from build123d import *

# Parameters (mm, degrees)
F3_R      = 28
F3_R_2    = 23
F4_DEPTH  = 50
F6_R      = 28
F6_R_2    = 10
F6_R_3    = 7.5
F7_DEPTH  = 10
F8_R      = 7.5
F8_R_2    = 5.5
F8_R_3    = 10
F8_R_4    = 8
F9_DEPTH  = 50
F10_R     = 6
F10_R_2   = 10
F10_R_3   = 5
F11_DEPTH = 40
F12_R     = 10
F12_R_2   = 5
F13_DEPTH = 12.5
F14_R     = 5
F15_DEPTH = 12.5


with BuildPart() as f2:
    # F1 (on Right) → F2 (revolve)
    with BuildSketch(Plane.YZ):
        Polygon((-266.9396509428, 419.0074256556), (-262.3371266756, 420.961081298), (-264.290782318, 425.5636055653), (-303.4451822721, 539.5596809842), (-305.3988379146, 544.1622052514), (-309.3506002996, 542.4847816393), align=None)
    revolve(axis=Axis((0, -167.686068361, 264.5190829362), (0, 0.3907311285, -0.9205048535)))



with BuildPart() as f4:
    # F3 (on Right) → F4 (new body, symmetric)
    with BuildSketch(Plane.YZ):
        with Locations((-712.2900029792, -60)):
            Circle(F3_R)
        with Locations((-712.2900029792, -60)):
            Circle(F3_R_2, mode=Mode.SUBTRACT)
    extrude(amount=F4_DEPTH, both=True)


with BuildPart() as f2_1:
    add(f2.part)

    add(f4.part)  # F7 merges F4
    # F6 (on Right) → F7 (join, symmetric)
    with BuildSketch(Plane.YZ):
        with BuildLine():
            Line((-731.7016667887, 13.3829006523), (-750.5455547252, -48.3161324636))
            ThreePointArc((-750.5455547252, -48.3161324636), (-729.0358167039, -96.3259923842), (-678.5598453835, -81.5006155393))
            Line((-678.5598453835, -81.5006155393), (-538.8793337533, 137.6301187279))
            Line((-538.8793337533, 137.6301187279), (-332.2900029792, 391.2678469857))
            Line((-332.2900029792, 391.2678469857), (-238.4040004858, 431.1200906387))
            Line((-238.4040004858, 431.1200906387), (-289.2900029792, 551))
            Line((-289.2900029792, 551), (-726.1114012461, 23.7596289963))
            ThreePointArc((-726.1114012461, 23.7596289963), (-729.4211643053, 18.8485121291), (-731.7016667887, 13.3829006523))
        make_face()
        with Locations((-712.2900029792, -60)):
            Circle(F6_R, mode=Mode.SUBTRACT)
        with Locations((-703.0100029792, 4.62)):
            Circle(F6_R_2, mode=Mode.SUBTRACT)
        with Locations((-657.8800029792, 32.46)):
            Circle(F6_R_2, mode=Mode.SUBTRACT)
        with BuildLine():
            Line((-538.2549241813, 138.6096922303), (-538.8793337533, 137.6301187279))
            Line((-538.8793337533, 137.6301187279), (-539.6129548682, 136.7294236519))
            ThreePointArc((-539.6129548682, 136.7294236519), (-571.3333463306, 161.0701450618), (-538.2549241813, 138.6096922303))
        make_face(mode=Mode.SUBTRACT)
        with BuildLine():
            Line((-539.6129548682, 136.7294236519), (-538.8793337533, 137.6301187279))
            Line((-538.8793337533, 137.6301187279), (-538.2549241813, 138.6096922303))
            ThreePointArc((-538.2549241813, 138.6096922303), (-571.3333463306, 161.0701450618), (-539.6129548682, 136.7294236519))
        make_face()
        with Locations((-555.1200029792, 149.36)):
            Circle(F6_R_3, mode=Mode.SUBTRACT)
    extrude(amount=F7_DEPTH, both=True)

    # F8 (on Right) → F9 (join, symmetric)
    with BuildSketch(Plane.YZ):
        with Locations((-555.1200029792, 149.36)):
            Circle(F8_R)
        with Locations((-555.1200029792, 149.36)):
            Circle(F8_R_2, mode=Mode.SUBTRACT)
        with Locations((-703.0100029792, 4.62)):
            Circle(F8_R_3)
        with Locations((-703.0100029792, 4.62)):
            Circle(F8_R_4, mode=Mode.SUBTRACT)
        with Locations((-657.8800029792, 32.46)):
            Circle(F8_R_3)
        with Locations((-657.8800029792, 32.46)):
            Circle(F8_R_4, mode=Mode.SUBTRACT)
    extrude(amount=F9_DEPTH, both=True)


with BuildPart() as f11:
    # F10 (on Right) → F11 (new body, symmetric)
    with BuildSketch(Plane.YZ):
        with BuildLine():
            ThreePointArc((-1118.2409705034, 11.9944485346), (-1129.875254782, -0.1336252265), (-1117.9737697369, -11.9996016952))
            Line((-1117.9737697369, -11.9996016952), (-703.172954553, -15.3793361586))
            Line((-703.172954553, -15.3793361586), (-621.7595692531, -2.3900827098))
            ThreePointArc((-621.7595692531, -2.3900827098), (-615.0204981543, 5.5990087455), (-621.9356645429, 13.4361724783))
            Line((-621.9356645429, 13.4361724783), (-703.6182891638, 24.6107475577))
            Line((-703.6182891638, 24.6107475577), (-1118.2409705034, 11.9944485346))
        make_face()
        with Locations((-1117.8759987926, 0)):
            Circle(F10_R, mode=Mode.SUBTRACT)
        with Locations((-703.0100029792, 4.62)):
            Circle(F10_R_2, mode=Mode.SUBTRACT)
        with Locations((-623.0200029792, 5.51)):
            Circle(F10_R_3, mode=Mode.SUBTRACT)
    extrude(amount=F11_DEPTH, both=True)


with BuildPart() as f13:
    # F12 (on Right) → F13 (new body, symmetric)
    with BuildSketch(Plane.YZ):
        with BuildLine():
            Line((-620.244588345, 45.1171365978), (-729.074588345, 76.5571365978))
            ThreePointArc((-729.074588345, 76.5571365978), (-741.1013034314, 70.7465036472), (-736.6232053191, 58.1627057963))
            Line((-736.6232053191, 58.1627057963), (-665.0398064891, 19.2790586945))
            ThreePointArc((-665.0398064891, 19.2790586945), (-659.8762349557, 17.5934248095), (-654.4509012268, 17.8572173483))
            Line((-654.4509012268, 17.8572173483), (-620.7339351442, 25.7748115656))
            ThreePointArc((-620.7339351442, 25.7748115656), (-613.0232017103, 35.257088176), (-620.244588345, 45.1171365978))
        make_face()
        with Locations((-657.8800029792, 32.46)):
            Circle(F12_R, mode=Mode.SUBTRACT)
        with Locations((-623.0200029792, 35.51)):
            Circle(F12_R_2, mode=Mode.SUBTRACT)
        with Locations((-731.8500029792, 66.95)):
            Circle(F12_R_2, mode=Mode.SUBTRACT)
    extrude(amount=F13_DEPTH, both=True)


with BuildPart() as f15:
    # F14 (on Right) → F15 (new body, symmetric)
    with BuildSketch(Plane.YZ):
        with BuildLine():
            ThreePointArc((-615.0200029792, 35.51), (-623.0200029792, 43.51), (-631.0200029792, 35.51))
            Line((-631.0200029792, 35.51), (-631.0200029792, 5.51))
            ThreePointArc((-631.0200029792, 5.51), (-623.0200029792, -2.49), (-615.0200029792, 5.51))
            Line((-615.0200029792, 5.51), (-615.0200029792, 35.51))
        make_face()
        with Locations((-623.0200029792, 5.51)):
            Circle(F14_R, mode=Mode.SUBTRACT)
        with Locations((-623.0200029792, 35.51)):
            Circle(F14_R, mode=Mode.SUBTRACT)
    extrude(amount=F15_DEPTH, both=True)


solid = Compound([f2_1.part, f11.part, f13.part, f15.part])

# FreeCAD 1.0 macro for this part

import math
import FreeCAD as App
import Part
import Sketcher
from FreeCAD import Vector
Q = App.Units.Quantity


def add_polygon(sketch, points):
    """Adds a closed chain of lines whose ends are joined by coincident constraints."""
    first, n = sketch.GeometryCount, len(points)
    for a, b in zip(points, points[1:] + points[:1]):
        sketch.addGeometry(Part.LineSegment(App.Vector(*a, 0), App.Vector(*b, 0)), False)
    for i in range(n):
        sketch.addConstraint(Sketcher.Constraint("Coincident", first + i, 2, first + (i + 1) % n, 1))

doc = App.newDocument("Part")
body = doc.addObject("PartDesign::Body", "Body")

sketch1 = body.newObject("Sketcher::SketchObject", "Sketch")
sketch1.AttachmentSupport = (doc.getObject("YZ_Plane"), [""])
sketch1.MapMode = "FlatFace"
add_polygon(sketch1, [(-266.9, 419), (-262.3, 421), (-264.3, 425.6), (-303.4, 539.6), (-305.4, 544.2), (-309.4, 542.5)])
sketch1.addGeometry(Part.LineSegment(Vector(-289.3, 551, 0), Vector(-238.4, 431.1, 0)), True)
sketch1.addConstraint(Sketcher.Constraint("Perpendicular", 0, 1))
sketch1.addConstraint(Sketcher.Constraint("Parallel", 1, 3))
sketch1.addConstraint(Sketcher.Constraint("Perpendicular", 3, 4))
sketch1.addConstraint(Sketcher.Constraint("Parallel", 2, 5))
sketch1.addConstraint(Sketcher.Constraint("Perpendicular", 4, 6))
sketch1.addConstraint(Sketcher.Constraint("Equal", 0, 1))
sketch1.addConstraint(Sketcher.Constraint("Equal", 1, 3))
sketch1.addConstraint(Sketcher.Constraint("Angle", 0, Q("23 deg")))
sketch1.addConstraint(Sketcher.Constraint("Distance", 0, Q("5 mm")))
sketch1.addConstraint(Sketcher.Constraint("DistanceY", -1, 1, 6, 1, Q("551 mm")))
sketch1.addConstraint(Sketcher.Constraint("DistanceX", 6, 2, -1, 1, Q("238.404 mm")))
sketch1.addConstraint(Sketcher.Constraint("DistanceX", 4, 2, -1, 1, Q("309.3506 mm")))
sketch1.addConstraint(Sketcher.Constraint("DistanceX", 2, 2, 1, 2, Q("39.1544 mm")))
sketch1.addConstraint(Sketcher.Constraint("DistanceY", 0, 2, 2, 2, Q("118.5986 mm")))
sketch1.addConstraint(Sketcher.Constraint("DistanceY", -1, 1, 0, 2, Q("420.961081 mm")))
sketch1.addConstraint(Sketcher.Constraint("DistanceY", -1, 1, 6, 2, Q("431.12009 mm")))
revolution = body.newObject("PartDesign::Revolution", "Revolution")
revolution.Profile = sketch1
revolution.ReferenceAxis = (sketch1, ["Axis0"])
revolution.Angle = 360
body2 = doc.addObject("PartDesign::Body", "Body001")

sketch2 = body2.newObject("Sketcher::SketchObject", "Sketch001")
sketch2.AttachmentSupport = (doc.getObject("YZ_Plane001"), [""])
sketch2.MapMode = "FlatFace"
sketch2.addGeometry(Part.Circle(Vector(-712, -60, 0), Vector(0, 0, 1), 28), False)
sketch2.addGeometry(Part.Circle(Vector(-712, -60, 0), Vector(0, 0, 1), 23), False)
sketch2.addConstraint(Sketcher.Constraint("Coincident", 1, 3, 0, 3))
sketch2.addConstraint(Sketcher.Constraint("Diameter", 0, Q("56 mm")))
sketch2.addConstraint(Sketcher.Constraint("Diameter", 1, Q("46 mm")))
sketch2.addConstraint(Sketcher.Constraint("DistanceY", 0, 3, -1, 1, Q("60 mm")))
sketch2.addConstraint(Sketcher.Constraint("DistanceX", 0, 3, -1, 1, Q("712.290003 mm")))
pad1 = body2.newObject("PartDesign::Pad", "Pad")
pad1.Profile = sketch2
pad1.Length = 100
pad1.Midplane = True
body.AllowCompound = True
doc.recompute()

boolean = body.newObject("PartDesign::Boolean", "Boolean")
boolean.Type = "Fuse"
boolean.addObjects([body2])

sketch3 = body.newObject("Sketcher::SketchObject", "Sketch002")
sketch3.AttachmentSupport = (doc.getObject("YZ_Plane"), [""])
sketch3.MapMode = "FlatFace"
sketch3.addGeometry(Part.LineSegment(Vector(-289, 551, 0), Vector(-726, 24, 0)), False)
sketch3.addGeometry(Part.ArcOfCircle(Part.Circle(Vector(-703, 5, 0), Vector(0, 0, 1), 30), math.radians(140), math.radians(163)), False)
sketch3.addGeometry(Part.LineSegment(Vector(-732, 13, 0), Vector(-751, -48, 0)), False)
sketch3.addGeometry(Part.ArcOfCircle(Part.Circle(Vector(-712, -60, 0), Vector(0, 0, 1), 40), math.radians(163), math.radians(327)), False)
sketch3.addGeometry(Part.LineSegment(Vector(-679, -82, 0), Vector(-539, 138, 0)), False)
sketch3.addGeometry(Part.LineSegment(Vector(-539, 138, 0), Vector(-332, 391, 0)), False)
sketch3.addGeometry(Part.LineSegment(Vector(-332, 391, 0), Vector(-238, 431, 0)), False)
sketch3.addGeometry(Part.LineSegment(Vector(-238, 431, 0), Vector(-289, 551, 0)), False)
sketch3.addGeometry(Part.Circle(Vector(-712, -60, 0), Vector(0, 0, 1), 28), False)
sketch3.addGeometry(Part.Circle(Vector(-703, 5, 0), Vector(0, 0, 1), 10), False)
sketch3.addGeometry(Part.Circle(Vector(-658, 32, 0), Vector(0, 0, 1), 10), False)
sketch3.addGeometry(Part.Circle(Vector(-555, 149, 0), Vector(0, 0, 1), 8), False)
sketch3.addConstraint(Sketcher.Constraint("Tangent", 0, 2, 1, 1))
sketch3.addConstraint(Sketcher.Constraint("Tangent", 1, 2, 2, 1))
sketch3.addConstraint(Sketcher.Constraint("Tangent", 2, 2, 3, 1))
sketch3.addConstraint(Sketcher.Constraint("Tangent", 3, 2, 4, 1))
sketch3.addConstraint(Sketcher.Constraint("Coincident", 4, 2, 5, 1))
sketch3.addConstraint(Sketcher.Constraint("Coincident", 5, 2, 6, 1))
sketch3.addConstraint(Sketcher.Constraint("Coincident", 6, 2, 7, 1))
sketch3.addConstraint(Sketcher.Constraint("Coincident", 7, 2, 0, 1))
sketch3.addConstraint(Sketcher.Constraint("Coincident", 8, 3, 3, 3))
sketch3.addConstraint(Sketcher.Constraint("Coincident", 9, 3, 1, 3))
sketch3.addConstraint(Sketcher.Constraint("Equal", 9, 10))
sketch3.addConstraint(Sketcher.Constraint("Perpendicular", 6, 7))
sketch3.addConstraint(Sketcher.Constraint("Diameter", 8, Q("56 mm")))
sketch3.addConstraint(Sketcher.Constraint("Diameter", 9, Q("20 mm")))
sketch3.addConstraint(Sketcher.Constraint("Diameter", 11, Q("15 mm")))
sketch3.addConstraint(Sketcher.Constraint("Radius", 1, Q("30 mm")))
sketch3.addConstraint(Sketcher.Constraint("Radius", 3, Q("40 mm")))
sketch3.addConstraint(Sketcher.Constraint("Angle", 6, Q("23 deg")))
sketch3.addConstraint(Sketcher.Constraint("DistanceY", 3, 3, -1, 1, Q("60 mm")))
sketch3.addConstraint(Sketcher.Constraint("DistanceY", -1, 1, 7, 2, Q("551 mm")))
sketch3.addConstraint(Sketcher.Constraint("DistanceX", 5, 2, 7, 2, Q("43 mm")))
sketch3.addConstraint(Sketcher.Constraint("DistanceY", 10, 3, 11, 3, Q("116.9 mm")))
sketch3.addConstraint(Sketcher.Constraint("DistanceY", -1, 1, 1, 3, Q("4.62 mm")))
sketch3.addConstraint(Sketcher.Constraint("DistanceY", -1, 1, 10, 3, Q("32.46 mm")))
sketch3.addConstraint(Sketcher.Constraint("DistanceX", 3, 3, 1, 3, Q("9.28 mm")))
sketch3.addConstraint(Sketcher.Constraint("DistanceX", 9, 3, 10, 3, Q("45.13 mm")))
sketch3.addConstraint(Sketcher.Constraint("DistanceX", 10, 3, 11, 3, Q("102.76 mm")))
sketch3.addConstraint(Sketcher.Constraint("DistanceX", 11, 3, 5, 2, Q("222.83 mm")))
sketch3.addConstraint(Sketcher.Constraint("DistanceX", 6, 2, -1, 1, Q("238.404 mm")))
sketch3.addConstraint(Sketcher.Constraint("DistanceX", 0, 2, -1, 1, Q("726.111401 mm")))
sketch3.addConstraint(Sketcher.Constraint("Distance", 4, Q("259.863279 mm")))
sketch3.addConstraint(Sketcher.Constraint("Distance", 5, Q("327.125738 mm")))
pad2 = body.newObject("PartDesign::Pad", "Pad001")
pad2.Profile = sketch3
pad2.Length = 20
pad2.Midplane = True

sketch4 = body.newObject("Sketcher::SketchObject", "Sketch003")
sketch4.AttachmentSupport = (doc.getObject("YZ_Plane"), [""])
sketch4.MapMode = "FlatFace"
sketch4.addGeometry(Part.Circle(Vector(-555, 149, 0), Vector(0, 0, 1), 8), False)
sketch4.addGeometry(Part.Circle(Vector(-555, 149, 0), Vector(0, 0, 1), 6), False)
sketch4.addGeometry(Part.Circle(Vector(-703, 5, 0), Vector(0, 0, 1), 10), False)
sketch4.addGeometry(Part.Circle(Vector(-703, 5, 0), Vector(0, 0, 1), 8), False)
sketch4.addGeometry(Part.Circle(Vector(-658, 32, 0), Vector(0, 0, 1), 10), False)
sketch4.addGeometry(Part.Circle(Vector(-658, 32, 0), Vector(0, 0, 1), 8), False)
sketch4.addConstraint(Sketcher.Constraint("Coincident", 1, 3, 0, 3))
sketch4.addConstraint(Sketcher.Constraint("Coincident", 3, 3, 2, 3))
sketch4.addConstraint(Sketcher.Constraint("Coincident", 5, 3, 4, 3))
sketch4.addConstraint(Sketcher.Constraint("Equal", 2, 4))
sketch4.addConstraint(Sketcher.Constraint("Equal", 3, 5))
sketch4.addConstraint(Sketcher.Constraint("Diameter", 0, Q("15 mm")))
sketch4.addConstraint(Sketcher.Constraint("Diameter", 1, Q("11 mm")))
sketch4.addConstraint(Sketcher.Constraint("Diameter", 2, Q("20 mm")))
sketch4.addConstraint(Sketcher.Constraint("Diameter", 3, Q("16 mm")))
sketch4.addConstraint(Sketcher.Constraint("DistanceY", 4, 3, 0, 3, Q("116.9 mm")))
sketch4.addConstraint(Sketcher.Constraint("DistanceY", -1, 1, 0, 3, Q("149.36 mm")))
sketch4.addConstraint(Sketcher.Constraint("DistanceY", -1, 1, 2, 3, Q("4.62 mm")))
sketch4.addConstraint(Sketcher.Constraint("DistanceX", 2, 3, 0, 3, Q("147.89 mm")))
sketch4.addConstraint(Sketcher.Constraint("DistanceX", 2, 3, 4, 3, Q("45.13 mm")))
sketch4.addConstraint(Sketcher.Constraint("DistanceX", 0, 3, -1, 1, Q("555.120003 mm")))
pad3 = body.newObject("PartDesign::Pad", "Pad002")
pad3.Profile = sketch4
pad3.Length = 100
pad3.Midplane = True
body3 = doc.addObject("PartDesign::Body", "Body002")

sketch5 = body3.newObject("Sketcher::SketchObject", "Sketch004")
sketch5.AttachmentSupport = (doc.getObject("YZ_Plane002"), [""])
sketch5.MapMode = "FlatFace"
sketch5.addGeometry(Part.ArcOfCircle(Part.Circle(Vector(-1118, 0, 0), Vector(0, 0, 1), 12), math.radians(92), math.radians(270)), False)
sketch5.addGeometry(Part.LineSegment(Vector(-1118, -12, 0), Vector(-703, -15, 0)), False)
sketch5.addGeometry(Part.LineSegment(Vector(-703, -15, 0), Vector(-622, -2, 0)), False)
sketch5.addGeometry(Part.ArcOfCircle(Part.Circle(Vector(-623, 6, 0), Vector(0, 0, 1), 8), math.radians(-81), math.radians(82)), False)
sketch5.addGeometry(Part.LineSegment(Vector(-622, 13, 0), Vector(-704, 25, 0)), False)
sketch5.addGeometry(Part.LineSegment(Vector(-704, 25, 0), Vector(-1118, 12, 0)), False)
sketch5.addGeometry(Part.Circle(Vector(-1118, 0, 0), Vector(0, 0, 1), 6), False)
sketch5.addGeometry(Part.Circle(Vector(-703, 5, 0), Vector(0, 0, 1), 10), False)
sketch5.addGeometry(Part.Circle(Vector(-623, 6, 0), Vector(0, 0, 1), 5), False)
sketch5.addConstraint(Sketcher.Constraint("Tangent", 0, 2, 1, 1))
sketch5.addConstraint(Sketcher.Constraint("Coincident", 1, 2, 2, 1))
sketch5.addConstraint(Sketcher.Constraint("Tangent", 2, 2, 3, 1))
sketch5.addConstraint(Sketcher.Constraint("Tangent", 3, 2, 4, 1))
sketch5.addConstraint(Sketcher.Constraint("Coincident", 4, 2, 5, 1))
sketch5.addConstraint(Sketcher.Constraint("Tangent", 5, 2, 0, 1))
sketch5.addConstraint(Sketcher.Constraint("Coincident", 6, 3, 0, 3))
sketch5.addConstraint(Sketcher.Constraint("Coincident", 8, 3, 3, 3))
sketch5.addConstraint(Sketcher.Constraint("PointOnObject", 0, 3, -1))
sketch5.addConstraint(Sketcher.Constraint("Equal", 1, 5))
sketch5.addConstraint(Sketcher.Constraint("Diameter", 6, Q("12 mm")))
sketch5.addConstraint(Sketcher.Constraint("Diameter", 7, Q("20 mm")))
sketch5.addConstraint(Sketcher.Constraint("Diameter", 8, Q("10 mm")))
sketch5.addConstraint(Sketcher.Constraint("Radius", 0, Q("12 mm")))
sketch5.addConstraint(Sketcher.Constraint("Radius", 3, Q("8 mm")))
sketch5.addConstraint(Sketcher.Constraint("DistanceY", -1, 1, 3, 3, Q("5.51 mm")))
sketch5.addConstraint(Sketcher.Constraint("DistanceY", -1, 1, 7, 3, Q("4.62 mm")))
sketch5.addConstraint(Sketcher.Constraint("DistanceX", 7, 3, 3, 3, Q("79.99 mm")))
sketch5.addConstraint(Sketcher.Constraint("DistanceX", 0, 3, -1, 1, Q("1117.875999 mm")))
sketch5.addConstraint(Sketcher.Constraint("DistanceX", 5, 2, 0, 2, Q("0.267201 mm")))
sketch5.addConstraint(Sketcher.Constraint("DistanceY", 5, 2, 4, 2, Q("12.616299 mm")))
sketch5.addConstraint(Sketcher.Constraint("Distance", 2, Q("82.443071 mm")))
sketch5.addConstraint(Sketcher.Constraint("DistanceX", 2, 2, -1, 1, Q("621.759569 mm")))
pad4 = body3.newObject("PartDesign::Pad", "Pad003")
pad4.Profile = sketch5
pad4.Length = 80
pad4.Midplane = True
body4 = doc.addObject("PartDesign::Body", "Body003")

sketch6 = body4.newObject("Sketcher::SketchObject", "Sketch005")
sketch6.AttachmentSupport = (doc.getObject("YZ_Plane003"), [""])
sketch6.MapMode = "FlatFace"
sketch6.addGeometry(Part.LineSegment(Vector(-620, 45, 0), Vector(-729, 77, 0)), False)
sketch6.addGeometry(Part.ArcOfCircle(Part.Circle(Vector(-732, 67, 0), Vector(0, 0, 1), 10), math.radians(74), math.radians(241)), False)
sketch6.addGeometry(Part.LineSegment(Vector(-737, 58, 0), Vector(-665, 19, 0)), False)
sketch6.addGeometry(Part.ArcOfCircle(Part.Circle(Vector(-658, 32, 0), Vector(0, 0, 1), 15), math.radians(-119), math.radians(-77)), False)
sketch6.addGeometry(Part.LineSegment(Vector(-654, 18, 0), Vector(-621, 26, 0)), False)
sketch6.addGeometry(Part.ArcOfCircle(Part.Circle(Vector(-623, 36, 0), Vector(0, 0, 1), 10), math.radians(-77), math.radians(74)), False)
sketch6.addGeometry(Part.Circle(Vector(-658, 32, 0), Vector(0, 0, 1), 10), False)
sketch6.addGeometry(Part.Circle(Vector(-623, 36, 0), Vector(0, 0, 1), 5), False)
sketch6.addGeometry(Part.Circle(Vector(-732, 67, 0), Vector(0, 0, 1), 5), False)
sketch6.addConstraint(Sketcher.Constraint("Tangent", 0, 2, 1, 1))
sketch6.addConstraint(Sketcher.Constraint("Tangent", 1, 2, 2, 1))
sketch6.addConstraint(Sketcher.Constraint("Tangent", 2, 2, 3, 1))
sketch6.addConstraint(Sketcher.Constraint("Tangent", 3, 2, 4, 1))
sketch6.addConstraint(Sketcher.Constraint("Tangent", 4, 2, 5, 1))
sketch6.addConstraint(Sketcher.Constraint("Tangent", 5, 2, 0, 1))
sketch6.addConstraint(Sketcher.Constraint("Coincident", 6, 3, 3, 3))
sketch6.addConstraint(Sketcher.Constraint("Coincident", 7, 3, 5, 3))
sketch6.addConstraint(Sketcher.Constraint("Coincident", 8, 3, 1, 3))
sketch6.addConstraint(Sketcher.Constraint("Equal", 1, 5))
sketch6.addConstraint(Sketcher.Constraint("Equal", 5, 6))
sketch6.addConstraint(Sketcher.Constraint("Equal", 7, 8))
sketch6.addConstraint(Sketcher.Constraint("Diameter", 6, Q("20 mm")))
sketch6.addConstraint(Sketcher.Constraint("Diameter", 7, Q("10 mm")))
sketch6.addConstraint(Sketcher.Constraint("Radius", 3, Q("15 mm")))
sketch6.addConstraint(Sketcher.Constraint("DistanceY", -1, 1, 1, 3, Q("66.95 mm")))
sketch6.addConstraint(Sketcher.Constraint("DistanceY", -1, 1, 3, 3, Q("32.46 mm")))
sketch6.addConstraint(Sketcher.Constraint("DistanceY", -1, 1, 5, 3, Q("35.51 mm")))
sketch6.addConstraint(Sketcher.Constraint("DistanceX", 1, 3, 3, 3, Q("73.97 mm")))
sketch6.addConstraint(Sketcher.Constraint("DistanceX", 3, 3, 5, 3, Q("34.86 mm")))
sketch6.addConstraint(Sketcher.Constraint("DistanceX", 3, 2, -1, 1, Q("654.450901 mm")))
pad5 = body4.newObject("PartDesign::Pad", "Pad004")
pad5.Profile = sketch6
pad5.Length = 25
pad5.Midplane = True
body5 = doc.addObject("PartDesign::Body", "Body004")

sketch7 = body5.newObject("Sketcher::SketchObject", "Sketch006")
sketch7.AttachmentSupport = (doc.getObject("YZ_Plane004"), [""])
sketch7.MapMode = "FlatFace"
sketch7.addGeometry(Part.ArcOfCircle(Part.Circle(Vector(-623, 36, 0), Vector(0, 0, 1), 8), math.radians(0), math.radians(180)), False)
sketch7.addGeometry(Part.LineSegment(Vector(-631, 36, 0), Vector(-631, 6, 0)), False)
sketch7.addGeometry(Part.ArcOfCircle(Part.Circle(Vector(-623, 6, 0), Vector(0, 0, 1), 8), math.radians(180), math.radians(360)), False)
sketch7.addGeometry(Part.LineSegment(Vector(-615, 6, 0), Vector(-615, 36, 0)), False)
sketch7.addGeometry(Part.Circle(Vector(-623, 6, 0), Vector(0, 0, 1), 5), False)
sketch7.addGeometry(Part.Circle(Vector(-623, 36, 0), Vector(0, 0, 1), 5), False)
sketch7.addConstraint(Sketcher.Constraint("Tangent", 0, 2, 1, 1))
sketch7.addConstraint(Sketcher.Constraint("Tangent", 1, 2, 2, 1))
sketch7.addConstraint(Sketcher.Constraint("Tangent", 2, 2, 3, 1))
sketch7.addConstraint(Sketcher.Constraint("Tangent", 3, 2, 0, 1))
sketch7.addConstraint(Sketcher.Constraint("Vertical", 1))
sketch7.addConstraint(Sketcher.Constraint("Vertical", 3))
sketch7.addConstraint(Sketcher.Constraint("Coincident", 4, 3, 2, 3))
sketch7.addConstraint(Sketcher.Constraint("Coincident", 5, 3, 0, 3))
sketch7.addConstraint(Sketcher.Constraint("Equal", 4, 5))
sketch7.addConstraint(Sketcher.Constraint("Diameter", 4, Q("10 mm")))
sketch7.addConstraint(Sketcher.Constraint("Radius", 0, Q("8 mm")))
sketch7.addConstraint(Sketcher.Constraint("DistanceY", 1, 2, 1, 1, Q("30 mm")))
sketch7.addConstraint(Sketcher.Constraint("DistanceY", -1, 1, 0, 3, Q("35.51 mm")))
sketch7.addConstraint(Sketcher.Constraint("DistanceX", 0, 3, -1, 1, Q("623.020003 mm")))
pad6 = body5.newObject("PartDesign::Pad", "Pad005")
pad6.Profile = sketch7
pad6.Length = 25
pad6.Midplane = True

doc.recompute()
